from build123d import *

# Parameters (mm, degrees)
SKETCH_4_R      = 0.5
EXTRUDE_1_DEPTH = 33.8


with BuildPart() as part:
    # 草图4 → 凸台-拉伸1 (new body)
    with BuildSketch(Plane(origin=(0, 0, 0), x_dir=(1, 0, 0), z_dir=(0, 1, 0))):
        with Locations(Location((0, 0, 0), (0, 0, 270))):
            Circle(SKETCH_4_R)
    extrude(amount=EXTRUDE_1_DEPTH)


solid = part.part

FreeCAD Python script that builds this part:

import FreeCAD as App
import Part
import Sketcher
Q = App.Units.Quantity

doc = App.newDocument("Part")
body = doc.addObject("PartDesign::Body", "Body")

sketch1 = body.newObject("Sketcher::SketchObject", "Sketch")
sketch1.AttachmentSupport = (doc.getObject("XZ_Plane"), [""])
sketch1.MapMode = "FlatFace"
sketch1.addGeometry(Part.Circle(App.Vector(0, 0, 0), App.Vector(0, 0, 1), 0.5), False)
sketch1.addConstraint([
    Sketcher.Constraint("Coincident", 0, 3, -1, 1),
    Sketcher.Constraint("Diameter", 0, Q("1 mm")),
])
pad1 = body.newObject("PartDesign::Pad", "Pad")
pad1.Profile = sketch1
pad1.Length = 33.8
pad1.Reversed = True

doc.recompute()
